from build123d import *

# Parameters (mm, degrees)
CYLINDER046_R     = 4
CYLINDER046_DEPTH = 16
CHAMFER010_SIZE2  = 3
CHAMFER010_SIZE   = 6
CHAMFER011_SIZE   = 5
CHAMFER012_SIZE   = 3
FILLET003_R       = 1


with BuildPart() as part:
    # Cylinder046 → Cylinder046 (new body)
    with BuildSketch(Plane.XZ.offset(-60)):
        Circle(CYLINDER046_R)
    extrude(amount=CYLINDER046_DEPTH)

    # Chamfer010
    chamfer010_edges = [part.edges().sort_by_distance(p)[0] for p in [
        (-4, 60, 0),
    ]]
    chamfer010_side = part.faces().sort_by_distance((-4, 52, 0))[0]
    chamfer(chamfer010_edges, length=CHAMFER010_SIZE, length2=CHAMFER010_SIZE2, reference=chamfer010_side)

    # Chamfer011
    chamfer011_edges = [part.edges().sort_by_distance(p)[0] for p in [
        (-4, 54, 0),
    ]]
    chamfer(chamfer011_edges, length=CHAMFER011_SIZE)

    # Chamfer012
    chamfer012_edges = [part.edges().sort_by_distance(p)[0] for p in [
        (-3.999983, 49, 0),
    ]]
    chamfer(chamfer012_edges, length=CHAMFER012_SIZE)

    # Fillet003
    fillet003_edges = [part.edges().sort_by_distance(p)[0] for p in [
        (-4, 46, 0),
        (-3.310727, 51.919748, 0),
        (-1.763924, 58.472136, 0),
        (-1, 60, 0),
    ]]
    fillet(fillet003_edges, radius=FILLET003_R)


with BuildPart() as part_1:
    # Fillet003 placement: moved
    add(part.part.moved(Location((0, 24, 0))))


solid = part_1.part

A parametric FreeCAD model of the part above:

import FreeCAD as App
import Part
import Sketcher
from FreeCAD import Vector
Q = App.Units.Quantity


def edges_at(feature, points):
    """Names of the edges that pass closest to the given points."""
    edges = feature.Shape.Edges
    near = lambda p: min(range(len(edges)), key=lambda i: edges[i].distToShape(Part.Vertex(*p))[0])
    return sorted({f"Edge{near(p) + 1}" for p in points})

doc = App.newDocument("Part")
body = doc.addObject("PartDesign::Body", "Body")

# Sketch on XZ plane
sketch1 = doc.addObject("Sketcher::SketchObject", "Sketch")
body.addObject(sketch1)
sketch1.AttachmentSupport = (doc.XZ_Plane, [""])
sketch1.MapMode = "FlatFace"
sketch1.AttachmentOffset = App.Placement(Vector(0, 0, -60), App.Rotation())
sketch1.addGeometry(Part.Circle(Vector(0, 0, 0), Vector(0, 0, 1), 4), False)
sketch1.addConstraint([
    Sketcher.Constraint("Coincident", 0, 3, -1, 1),
    Sketcher.Constraint("Diameter", 0, Q("8 mm")),
])
pad1 = doc.addObject("PartDesign::Pad", "Pad")
body.addObject(pad1)
pad1.Profile = sketch1
pad1.Length = 16
doc.recompute()

chamfer = doc.addObject("PartDesign::Chamfer", "Chamfer")
body.addObject(chamfer)
chamfer.Base = (pad1, edges_at(pad1, [(-4, 60, 0)]))
chamfer.ChamferType = "Two distances"
chamfer.Size = 6
chamfer.Size2 = 3
doc.recompute()

chamfer2 = doc.addObject("PartDesign::Chamfer", "Chamfer001")
body.addObject(chamfer2)
chamfer2.Base = (chamfer, edges_at(chamfer, [(-4, 54, 0)]))
chamfer2.Size = 5
doc.recompute()

chamfer3 = doc.addObject("PartDesign::Chamfer", "Chamfer002")
body.addObject(chamfer3)
chamfer3.Base = (chamfer2, edges_at(chamfer2, [(-4, 49, 0)]))
chamfer3.Size = 3
doc.recompute()

fillet = doc.addObject("PartDesign::Fillet", "Fillet")
body.addObject(fillet)
fillet.Base = (chamfer3, edges_at(chamfer3, [
    (-4, 46, 0),
    (-3.311, 51.92, 0),
    (-1.764, 58.472, 0),
    (-1, 60, 0),
]))
fillet.Radius = 1
body2 = doc.addObject("PartDesign::Body", "Body001")
doc.recompute()

body.Placement = App.Placement(Vector(0, 24, 0), App.Rotation(Vector(0, 0, 1), 0))
boolean = doc.addObject("PartDesign::Boolean", "Boolean")
body2.addObject(boolean)
boolean.Type = "Fuse"
boolean.addObjects([body])

doc.recompute()
